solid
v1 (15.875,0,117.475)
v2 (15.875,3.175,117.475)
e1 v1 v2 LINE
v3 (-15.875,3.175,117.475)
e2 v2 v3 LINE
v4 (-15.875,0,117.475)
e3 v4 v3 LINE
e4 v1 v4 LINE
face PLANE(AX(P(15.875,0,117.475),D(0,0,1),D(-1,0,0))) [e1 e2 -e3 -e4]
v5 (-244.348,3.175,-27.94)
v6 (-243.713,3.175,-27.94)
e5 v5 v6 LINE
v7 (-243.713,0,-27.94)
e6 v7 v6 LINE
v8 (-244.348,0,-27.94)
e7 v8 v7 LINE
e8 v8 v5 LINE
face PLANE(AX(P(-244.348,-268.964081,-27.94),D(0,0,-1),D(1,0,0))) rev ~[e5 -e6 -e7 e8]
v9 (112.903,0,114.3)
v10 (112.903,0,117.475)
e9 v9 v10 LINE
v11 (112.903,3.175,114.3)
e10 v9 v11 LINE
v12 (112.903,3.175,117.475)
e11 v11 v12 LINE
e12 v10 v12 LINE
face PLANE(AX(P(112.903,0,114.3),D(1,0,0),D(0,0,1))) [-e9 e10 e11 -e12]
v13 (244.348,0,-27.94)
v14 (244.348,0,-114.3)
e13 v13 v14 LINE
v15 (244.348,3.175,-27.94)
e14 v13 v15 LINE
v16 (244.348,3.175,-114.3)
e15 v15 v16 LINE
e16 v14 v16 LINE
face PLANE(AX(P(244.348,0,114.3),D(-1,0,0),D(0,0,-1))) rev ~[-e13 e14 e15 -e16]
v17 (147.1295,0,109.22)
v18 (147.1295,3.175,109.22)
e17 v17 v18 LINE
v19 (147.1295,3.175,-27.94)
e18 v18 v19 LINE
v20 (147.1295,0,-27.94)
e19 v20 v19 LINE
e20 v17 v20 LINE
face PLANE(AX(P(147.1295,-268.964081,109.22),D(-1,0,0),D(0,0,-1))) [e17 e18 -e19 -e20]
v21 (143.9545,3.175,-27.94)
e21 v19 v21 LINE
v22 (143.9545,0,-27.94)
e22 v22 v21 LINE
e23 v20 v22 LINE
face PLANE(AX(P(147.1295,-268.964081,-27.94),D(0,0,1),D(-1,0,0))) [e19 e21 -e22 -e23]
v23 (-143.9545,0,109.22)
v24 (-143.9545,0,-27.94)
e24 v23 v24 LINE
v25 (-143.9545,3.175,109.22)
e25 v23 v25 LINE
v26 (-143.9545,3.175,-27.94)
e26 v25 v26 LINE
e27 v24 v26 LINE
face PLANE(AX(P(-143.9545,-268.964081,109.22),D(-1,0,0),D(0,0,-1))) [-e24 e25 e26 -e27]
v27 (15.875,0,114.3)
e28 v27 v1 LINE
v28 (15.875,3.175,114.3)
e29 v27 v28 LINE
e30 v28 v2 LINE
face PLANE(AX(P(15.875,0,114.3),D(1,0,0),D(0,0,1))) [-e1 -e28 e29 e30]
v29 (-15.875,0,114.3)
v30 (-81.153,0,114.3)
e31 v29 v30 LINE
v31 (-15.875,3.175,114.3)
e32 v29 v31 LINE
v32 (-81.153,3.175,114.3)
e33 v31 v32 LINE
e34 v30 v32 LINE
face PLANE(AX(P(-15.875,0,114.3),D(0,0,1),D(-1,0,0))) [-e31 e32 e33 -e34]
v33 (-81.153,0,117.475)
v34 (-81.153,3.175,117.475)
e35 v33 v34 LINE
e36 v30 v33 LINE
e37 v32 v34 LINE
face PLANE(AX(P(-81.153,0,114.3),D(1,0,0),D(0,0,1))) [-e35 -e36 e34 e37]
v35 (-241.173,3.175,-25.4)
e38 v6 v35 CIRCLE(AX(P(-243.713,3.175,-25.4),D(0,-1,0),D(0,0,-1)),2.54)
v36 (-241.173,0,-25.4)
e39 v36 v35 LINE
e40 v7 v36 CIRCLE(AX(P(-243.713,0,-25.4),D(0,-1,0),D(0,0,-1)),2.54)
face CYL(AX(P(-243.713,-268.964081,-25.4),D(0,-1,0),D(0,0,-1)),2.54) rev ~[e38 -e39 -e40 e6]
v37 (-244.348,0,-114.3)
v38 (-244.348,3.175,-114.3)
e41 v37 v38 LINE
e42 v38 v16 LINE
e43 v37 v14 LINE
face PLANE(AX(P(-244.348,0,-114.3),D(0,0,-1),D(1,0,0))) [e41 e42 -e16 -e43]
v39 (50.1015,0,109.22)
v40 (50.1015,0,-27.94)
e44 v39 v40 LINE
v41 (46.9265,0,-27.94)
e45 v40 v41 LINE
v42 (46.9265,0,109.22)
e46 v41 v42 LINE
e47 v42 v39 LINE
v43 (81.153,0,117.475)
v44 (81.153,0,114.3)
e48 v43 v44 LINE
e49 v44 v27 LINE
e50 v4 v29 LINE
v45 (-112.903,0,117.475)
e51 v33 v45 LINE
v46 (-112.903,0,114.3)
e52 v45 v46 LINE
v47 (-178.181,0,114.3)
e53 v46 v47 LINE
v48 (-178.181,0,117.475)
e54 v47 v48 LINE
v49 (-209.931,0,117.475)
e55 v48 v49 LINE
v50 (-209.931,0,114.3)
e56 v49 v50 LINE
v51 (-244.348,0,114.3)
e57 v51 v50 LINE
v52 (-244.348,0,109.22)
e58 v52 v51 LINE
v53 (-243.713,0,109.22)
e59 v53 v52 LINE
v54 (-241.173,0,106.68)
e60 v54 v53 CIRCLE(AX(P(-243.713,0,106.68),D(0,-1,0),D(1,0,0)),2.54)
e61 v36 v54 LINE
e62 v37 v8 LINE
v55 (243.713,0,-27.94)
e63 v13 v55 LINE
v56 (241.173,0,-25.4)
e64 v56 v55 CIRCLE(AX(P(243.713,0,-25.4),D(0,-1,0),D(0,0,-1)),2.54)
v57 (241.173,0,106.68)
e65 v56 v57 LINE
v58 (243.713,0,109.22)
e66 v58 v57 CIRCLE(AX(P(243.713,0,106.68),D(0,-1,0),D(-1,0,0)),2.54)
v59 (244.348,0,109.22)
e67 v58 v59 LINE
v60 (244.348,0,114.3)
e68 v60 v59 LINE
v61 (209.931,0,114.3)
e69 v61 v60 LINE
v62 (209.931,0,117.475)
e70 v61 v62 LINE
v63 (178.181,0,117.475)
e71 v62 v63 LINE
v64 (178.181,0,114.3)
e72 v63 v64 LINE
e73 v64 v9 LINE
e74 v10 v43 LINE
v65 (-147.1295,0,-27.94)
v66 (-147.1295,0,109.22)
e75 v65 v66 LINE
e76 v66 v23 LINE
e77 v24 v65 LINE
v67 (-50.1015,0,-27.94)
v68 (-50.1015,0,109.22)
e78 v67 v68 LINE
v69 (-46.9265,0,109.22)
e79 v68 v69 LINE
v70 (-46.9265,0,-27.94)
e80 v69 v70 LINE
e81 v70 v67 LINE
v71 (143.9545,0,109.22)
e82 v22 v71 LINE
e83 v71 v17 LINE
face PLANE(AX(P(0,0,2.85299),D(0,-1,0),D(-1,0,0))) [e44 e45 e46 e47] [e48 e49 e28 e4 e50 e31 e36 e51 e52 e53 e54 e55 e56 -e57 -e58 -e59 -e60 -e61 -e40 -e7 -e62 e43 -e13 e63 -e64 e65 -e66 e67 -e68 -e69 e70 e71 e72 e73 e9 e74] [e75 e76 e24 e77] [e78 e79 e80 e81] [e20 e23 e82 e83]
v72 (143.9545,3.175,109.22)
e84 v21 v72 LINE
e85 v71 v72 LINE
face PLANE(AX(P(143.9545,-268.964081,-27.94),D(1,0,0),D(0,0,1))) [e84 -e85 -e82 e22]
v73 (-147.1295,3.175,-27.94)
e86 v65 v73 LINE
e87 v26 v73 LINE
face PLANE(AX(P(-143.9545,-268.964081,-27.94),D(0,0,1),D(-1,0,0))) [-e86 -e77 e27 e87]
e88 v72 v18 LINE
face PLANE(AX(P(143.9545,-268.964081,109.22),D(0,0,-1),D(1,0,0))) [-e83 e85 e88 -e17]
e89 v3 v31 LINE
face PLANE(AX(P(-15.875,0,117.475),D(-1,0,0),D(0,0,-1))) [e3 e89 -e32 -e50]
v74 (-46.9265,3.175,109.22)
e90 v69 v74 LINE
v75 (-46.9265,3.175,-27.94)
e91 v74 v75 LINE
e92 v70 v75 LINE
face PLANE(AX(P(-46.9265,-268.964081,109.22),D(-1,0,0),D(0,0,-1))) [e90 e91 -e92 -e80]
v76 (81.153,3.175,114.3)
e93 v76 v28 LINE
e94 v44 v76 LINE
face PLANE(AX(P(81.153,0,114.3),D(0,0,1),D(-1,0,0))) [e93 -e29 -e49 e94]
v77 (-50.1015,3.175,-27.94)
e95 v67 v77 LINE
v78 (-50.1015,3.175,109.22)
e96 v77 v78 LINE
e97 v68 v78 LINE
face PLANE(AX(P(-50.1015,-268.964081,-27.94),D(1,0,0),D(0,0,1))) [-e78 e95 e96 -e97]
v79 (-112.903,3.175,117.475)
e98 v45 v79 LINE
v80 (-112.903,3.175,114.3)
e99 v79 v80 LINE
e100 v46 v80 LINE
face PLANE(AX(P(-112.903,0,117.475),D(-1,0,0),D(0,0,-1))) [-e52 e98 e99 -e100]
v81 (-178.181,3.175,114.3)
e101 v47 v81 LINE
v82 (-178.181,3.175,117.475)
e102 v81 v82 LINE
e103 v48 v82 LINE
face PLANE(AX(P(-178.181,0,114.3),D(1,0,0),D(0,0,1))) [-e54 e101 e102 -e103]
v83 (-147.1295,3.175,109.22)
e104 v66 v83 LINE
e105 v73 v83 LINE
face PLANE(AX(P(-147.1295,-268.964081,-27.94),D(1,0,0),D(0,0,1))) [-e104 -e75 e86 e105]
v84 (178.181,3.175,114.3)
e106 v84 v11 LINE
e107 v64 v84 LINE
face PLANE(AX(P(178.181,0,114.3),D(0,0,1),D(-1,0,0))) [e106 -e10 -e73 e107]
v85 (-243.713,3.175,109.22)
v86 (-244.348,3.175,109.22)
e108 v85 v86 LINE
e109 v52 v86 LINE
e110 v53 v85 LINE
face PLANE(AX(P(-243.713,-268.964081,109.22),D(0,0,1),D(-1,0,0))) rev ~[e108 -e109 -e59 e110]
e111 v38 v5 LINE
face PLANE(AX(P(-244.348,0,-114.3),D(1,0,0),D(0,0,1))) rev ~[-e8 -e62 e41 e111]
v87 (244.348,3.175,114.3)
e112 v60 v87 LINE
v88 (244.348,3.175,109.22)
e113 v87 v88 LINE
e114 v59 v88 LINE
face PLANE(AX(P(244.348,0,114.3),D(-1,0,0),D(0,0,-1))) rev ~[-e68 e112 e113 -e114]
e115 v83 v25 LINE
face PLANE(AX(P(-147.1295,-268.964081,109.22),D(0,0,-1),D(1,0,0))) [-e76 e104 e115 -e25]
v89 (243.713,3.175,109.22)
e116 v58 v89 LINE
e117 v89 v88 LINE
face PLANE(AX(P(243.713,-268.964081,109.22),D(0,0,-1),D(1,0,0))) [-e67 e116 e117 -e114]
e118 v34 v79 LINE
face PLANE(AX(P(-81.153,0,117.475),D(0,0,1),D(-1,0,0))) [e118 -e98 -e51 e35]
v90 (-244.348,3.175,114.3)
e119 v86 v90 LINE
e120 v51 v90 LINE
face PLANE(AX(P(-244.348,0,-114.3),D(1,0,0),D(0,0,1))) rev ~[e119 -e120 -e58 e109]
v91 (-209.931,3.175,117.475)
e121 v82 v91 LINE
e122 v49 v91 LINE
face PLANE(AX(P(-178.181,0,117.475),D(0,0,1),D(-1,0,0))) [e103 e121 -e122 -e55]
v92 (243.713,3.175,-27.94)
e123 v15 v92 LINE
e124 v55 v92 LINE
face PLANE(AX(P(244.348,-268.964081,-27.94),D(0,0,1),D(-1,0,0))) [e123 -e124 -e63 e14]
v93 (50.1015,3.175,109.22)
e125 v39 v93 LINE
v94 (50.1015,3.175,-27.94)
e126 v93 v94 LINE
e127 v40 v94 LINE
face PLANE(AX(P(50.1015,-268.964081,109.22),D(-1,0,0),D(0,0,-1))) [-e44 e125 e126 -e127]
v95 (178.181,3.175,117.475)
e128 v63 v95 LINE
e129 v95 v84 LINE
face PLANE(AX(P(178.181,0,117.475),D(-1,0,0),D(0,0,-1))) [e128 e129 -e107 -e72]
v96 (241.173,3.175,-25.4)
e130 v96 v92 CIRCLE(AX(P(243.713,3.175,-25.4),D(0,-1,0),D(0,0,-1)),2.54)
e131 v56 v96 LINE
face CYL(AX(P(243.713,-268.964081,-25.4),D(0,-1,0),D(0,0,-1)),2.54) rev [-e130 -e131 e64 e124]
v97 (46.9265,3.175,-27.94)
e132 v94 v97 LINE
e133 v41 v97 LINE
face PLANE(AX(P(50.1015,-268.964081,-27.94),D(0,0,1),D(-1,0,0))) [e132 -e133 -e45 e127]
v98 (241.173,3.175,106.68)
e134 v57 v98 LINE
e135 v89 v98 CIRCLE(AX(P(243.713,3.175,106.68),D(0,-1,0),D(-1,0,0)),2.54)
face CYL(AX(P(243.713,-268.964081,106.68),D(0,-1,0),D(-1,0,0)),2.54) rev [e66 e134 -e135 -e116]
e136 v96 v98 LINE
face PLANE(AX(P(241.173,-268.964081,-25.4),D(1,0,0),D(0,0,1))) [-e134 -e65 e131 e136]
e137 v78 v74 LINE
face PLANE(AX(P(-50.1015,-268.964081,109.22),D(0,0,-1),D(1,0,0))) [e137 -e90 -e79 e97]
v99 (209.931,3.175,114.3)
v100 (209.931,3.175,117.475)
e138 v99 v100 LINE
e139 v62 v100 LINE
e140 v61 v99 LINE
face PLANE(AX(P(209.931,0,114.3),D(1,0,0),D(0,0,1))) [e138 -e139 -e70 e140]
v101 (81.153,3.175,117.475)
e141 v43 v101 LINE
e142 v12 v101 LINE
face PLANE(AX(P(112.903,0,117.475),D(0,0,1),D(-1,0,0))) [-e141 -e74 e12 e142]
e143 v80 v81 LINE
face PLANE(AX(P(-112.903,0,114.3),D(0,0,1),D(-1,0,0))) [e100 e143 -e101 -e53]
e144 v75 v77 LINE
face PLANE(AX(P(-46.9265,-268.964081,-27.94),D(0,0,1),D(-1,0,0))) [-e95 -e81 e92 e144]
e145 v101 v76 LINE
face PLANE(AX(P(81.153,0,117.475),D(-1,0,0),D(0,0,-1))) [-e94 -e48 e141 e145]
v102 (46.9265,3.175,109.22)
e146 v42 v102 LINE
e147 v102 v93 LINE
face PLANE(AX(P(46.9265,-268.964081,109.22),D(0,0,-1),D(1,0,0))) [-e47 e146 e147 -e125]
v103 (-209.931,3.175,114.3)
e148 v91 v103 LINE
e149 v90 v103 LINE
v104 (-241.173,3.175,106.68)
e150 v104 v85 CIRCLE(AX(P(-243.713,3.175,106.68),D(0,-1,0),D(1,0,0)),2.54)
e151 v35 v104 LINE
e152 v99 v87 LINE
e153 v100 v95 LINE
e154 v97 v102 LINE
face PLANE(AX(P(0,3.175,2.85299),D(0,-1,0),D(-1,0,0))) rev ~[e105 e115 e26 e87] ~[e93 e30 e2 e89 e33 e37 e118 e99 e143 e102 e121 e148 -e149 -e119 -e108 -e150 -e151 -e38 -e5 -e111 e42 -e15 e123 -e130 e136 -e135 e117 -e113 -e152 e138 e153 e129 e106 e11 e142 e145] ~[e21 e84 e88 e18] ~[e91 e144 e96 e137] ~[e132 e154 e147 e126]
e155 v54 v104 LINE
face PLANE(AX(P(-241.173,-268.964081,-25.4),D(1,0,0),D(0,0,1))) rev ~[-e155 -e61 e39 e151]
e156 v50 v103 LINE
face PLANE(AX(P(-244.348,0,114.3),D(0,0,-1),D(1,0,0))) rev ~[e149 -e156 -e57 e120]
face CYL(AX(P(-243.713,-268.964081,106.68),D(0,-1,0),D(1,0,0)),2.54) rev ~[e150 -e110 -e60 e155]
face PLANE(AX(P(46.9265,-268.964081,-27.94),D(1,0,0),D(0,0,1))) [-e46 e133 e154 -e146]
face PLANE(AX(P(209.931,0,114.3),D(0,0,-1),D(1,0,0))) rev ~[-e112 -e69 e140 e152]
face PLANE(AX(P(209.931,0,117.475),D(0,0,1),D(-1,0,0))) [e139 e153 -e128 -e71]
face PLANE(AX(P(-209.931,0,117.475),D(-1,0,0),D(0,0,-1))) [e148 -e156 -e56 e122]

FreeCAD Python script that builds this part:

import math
import FreeCAD as App
import Part
import Sketcher

V = App.Vector
Q = App.Units.Quantity

doc = App.newDocument("Part")
body = doc.addObject("PartDesign::Body", "Body")

# Sketch on XZ plane
sketch1 = body.newObject("Sketcher::SketchObject", "Sketch")
sketch1.AttachmentSupport = (doc.getObject("XZ_Plane"), [""])
sketch1.MapMode = "FlatFace"
sketch1.addGeometry([
    Part.LineSegment(V(244.3, -114.3, 0), V(-244.3, -114.3, 0)),  # 0
    Part.LineSegment(V(-244.3, -114.3, 0), V(-244.3, 114.3, 0)),  # 1
    Part.LineSegment(V(-244.3, 114.3, 0), V(-209.9, 114.3, 0)),  # 2
    Part.LineSegment(V(-209.9, 114.3, 0), V(-209.9, 117.5, 0)),  # 3
    Part.LineSegment(V(-209.9, 117.5, 0), V(-178.2, 117.5, 0)),  # 4
    Part.LineSegment(V(-178.2, 117.5, 0), V(-178.2, 114.3, 0)),  # 5
    Part.LineSegment(V(-178.2, 114.3, 0), V(-112.9, 114.3, 0)),  # 6
    Part.LineSegment(V(-112.9, 114.3, 0), V(-112.9, 117.5, 0)),  # 7
    Part.LineSegment(V(-112.9, 117.5, 0), V(-81.2, 117.5, 0)),  # 8
    Part.LineSegment(V(-81.2, 117.5, 0), V(-81.2, 114.3, 0)),  # 9
    Part.LineSegment(V(-81.2, 114.3, 0), V(-15.9, 114.3, 0)),  # 10
    Part.LineSegment(V(-15.9, 114.3, 0), V(-15.9, 117.5, 0)),  # 11
    Part.LineSegment(V(-15.9, 117.5, 0), V(15.9, 117.5, 0)),  # 12
    Part.LineSegment(V(15.9, 117.5, 0), V(15.9, 114.3, 0)),  # 13
    Part.LineSegment(V(15.9, 114.3, 0), V(81.2, 114.3, 0)),  # 14
    Part.LineSegment(V(81.2, 114.3, 0), V(81.2, 117.5, 0)),  # 15
    Part.LineSegment(V(81.2, 117.5, 0), V(112.9, 117.5, 0)),  # 16
    Part.LineSegment(V(112.9, 117.5, 0), V(112.9, 114.3, 0)),  # 17
    Part.LineSegment(V(112.9, 114.3, 0), V(178.2, 114.3, 0)),  # 18
    Part.LineSegment(V(178.2, 114.3, 0), V(178.2, 117.5, 0)),  # 19
    Part.LineSegment(V(178.2, 117.5, 0), V(209.9, 117.5, 0)),  # 20
    Part.LineSegment(V(209.9, 117.5, 0), V(209.9, 114.3, 0)),  # 21
    Part.LineSegment(V(209.9, 114.3, 0), V(244.3, 114.3, 0)),  # 22
    Part.LineSegment(V(244.3, 114.3, 0), V(244.3, -114.3, 0)),  # 23
], False)
sketch1.addConstraint([
    Sketcher.Constraint("Coincident", 0, 2, 1, 1),
    Sketcher.Constraint("Coincident", 1, 2, 2, 1),
    Sketcher.Constraint("Coincident", 2, 2, 3, 1),
    Sketcher.Constraint("Coincident", 3, 2, 4, 1),
    Sketcher.Constraint("Coincident", 4, 2, 5, 1),
    Sketcher.Constraint("Coincident", 5, 2, 6, 1),
    Sketcher.Constraint("Coincident", 6, 2, 7, 1),
    Sketcher.Constraint("Coincident", 7, 2, 8, 1),
    Sketcher.Constraint("Coincident", 8, 2, 9, 1),
    Sketcher.Constraint("Coincident", 9, 2, 10, 1),
    Sketcher.Constraint("Coincident", 10, 2, 11, 1),
    Sketcher.Constraint("Coincident", 11, 2, 12, 1),
    Sketcher.Constraint("Coincident", 12, 2, 13, 1),
    Sketcher.Constraint("Coincident", 13, 2, 14, 1),
    Sketcher.Constraint("Coincident", 14, 2, 15, 1),
    Sketcher.Constraint("Coincident", 15, 2, 16, 1),
    Sketcher.Constraint("Coincident", 16, 2, 17, 1),
    Sketcher.Constraint("Coincident", 17, 2, 18, 1),
    Sketcher.Constraint("Coincident", 18, 2, 19, 1),
    Sketcher.Constraint("Coincident", 19, 2, 20, 1),
    Sketcher.Constraint("Coincident", 20, 2, 21, 1),
    Sketcher.Constraint("Coincident", 21, 2, 22, 1),
    Sketcher.Constraint("Coincident", 22, 2, 23, 1),
    Sketcher.Constraint("Coincident", 23, 2, 0, 1),
    Sketcher.Constraint("Horizontal", 0),
    Sketcher.Constraint("Vertical", 1),
    Sketcher.Constraint("Horizontal", 2),
    Sketcher.Constraint("Vertical", 3),
    Sketcher.Constraint("Horizontal", 4),
    Sketcher.Constraint("Vertical", 5),
    Sketcher.Constraint("Horizontal", 6),
    Sketcher.Constraint("Vertical", 7),
    Sketcher.Constraint("Horizontal", 8),
    Sketcher.Constraint("Vertical", 9),
    Sketcher.Constraint("Horizontal", 10),
    Sketcher.Constraint("Vertical", 11),
    Sketcher.Constraint("Horizontal", 12),
    Sketcher.Constraint("Vertical", 13),
    Sketcher.Constraint("Horizontal", 14),
    Sketcher.Constraint("Vertical", 15),
    Sketcher.Constraint("Horizontal", 16),
    Sketcher.Constraint("Vertical", 17),
    Sketcher.Constraint("Horizontal", 18),
    Sketcher.Constraint("Vertical", 19),
    Sketcher.Constraint("Horizontal", 20),
    Sketcher.Constraint("Vertical", 21),
    Sketcher.Constraint("Horizontal", 22),
    Sketcher.Constraint("Vertical", 23),
    Sketcher.Constraint("Symmetric", 0, 2, 22, 2, -1, 1),
    Sketcher.Constraint("Symmetric", 10, 2, 13, 2, -2),
    Sketcher.Constraint("Symmetric", 8, 2, 15, 2, -2),
    Sketcher.Constraint("Symmetric", 6, 2, 17, 2, -2),
    Sketcher.Constraint("Symmetric", 4, 2, 19, 2, -2),
    Sketcher.Constraint("Symmetric", 2, 2, 21, 2, -2),
    Sketcher.Constraint("Horizontal", 2, 2, 5, 2),
    Sketcher.Constraint("Horizontal", 4, 2, 7, 2),
    Sketcher.Constraint("Horizontal", 6, 2, 9, 2),
    Sketcher.Constraint("Horizontal", 8, 2, 11, 2),
    Sketcher.Constraint("Equal", 4, 8),
    Sketcher.Constraint("Equal", 6, 10),
    Sketcher.Constraint("Equal", 8, 12),
    Sketcher.Constraint("DistanceY", 1, 1, 1, 2, Q("9 in")),
    Sketcher.Constraint("DistanceX", 0, 2, 0, 1, Q("19.24 in")),
    Sketcher.Constraint("DistanceX", 4, 1, 4, 2, Q("1.25 in")),
    Sketcher.Constraint("DistanceX", 6, 1, 6, 2, Q("2.57 in")),
    Sketcher.Constraint("DistanceY", 3, 1, 3, 2, Q("0.125 in")),
])
pad1 = body.newObject("PartDesign::Pad", "Pad")
pad1.Profile = sketch1
pad1.Length = Q("0.125 in")
pad1.Reversed = True

# Sketch on XZ plane
sketch2 = body.newObject("Sketcher::SketchObject", "Sketch001")
sketch2.AttachmentSupport = (doc.getObject("XZ_Plane"), [""])
sketch2.MapMode = "FlatFace"
sketch2.AttachmentOffset = App.Placement(V(0, 0, -0.125 * 25.4), App.Rotation())
sketch2.addGeometry([
    Part.LineSegment(V(244.3, -27.9, 0), V(243.7, -27.9, 0)),  # 0
    Part.ArcOfCircle(Part.Circle(V(243.7, -25.4, 0), V(0, 0, 1), 2.5), math.radians(-180), math.radians(-90)),  # 1
    Part.LineSegment(V(241.2, -25.4, 0), V(241.2, 106.7, 0)),  # 2
    Part.ArcOfCircle(Part.Circle(V(243.7, 106.7, 0), V(0, 0, 1), 2.5), math.radians(90), math.radians(180)),  # 3
    Part.LineSegment(V(243.7, 109.2, 0), V(244.3, 109.2, 0)),  # 4
    Part.LineSegment(V(244.3, 109.2, 0), V(244.3, -27.9, 0)),  # 5
    Part.LineSegment(V(-244.3, 109.2, 0), V(-243.7, 109.2, 0)),  # 6
    Part.ArcOfCircle(Part.Circle(V(-243.7, 106.7, 0), V(0, 0, 1), 2.5), math.radians(0), math.radians(90)),  # 7
    Part.LineSegment(V(-241.2, 106.7, 0), V(-241.2, -25.4, 0)),  # 8
    Part.ArcOfCircle(Part.Circle(V(-243.7, -25.4, 0), V(0, 0, 1), 2.5), math.radians(-90), math.radians(0)),  # 9
    Part.LineSegment(V(-243.7, -27.9, 0), V(-244.3, -27.9, 0)),  # 10
    Part.LineSegment(V(-244.3, -27.9, 0), V(-244.3, 109.2, 0)),  # 11
], False)
sketch2.addConstraint([
    Sketcher.Constraint("Tangent", 0, 2, 1, 2),
    Sketcher.Constraint("Tangent", 1, 1, 2, 1),
    Sketcher.Constraint("Tangent", 2, 2, 3, 2),
    Sketcher.Constraint("Tangent", 3, 1, 4, 1),
    Sketcher.Constraint("Coincident", 4, 2, 5, 1),
    Sketcher.Constraint("Coincident", 5, 2, 0, 1),
    Sketcher.Constraint("Tangent", 6, 2, 7, 2),
    Sketcher.Constraint("Tangent", 7, 1, 8, 1),
    Sketcher.Constraint("Tangent", 8, 2, 9, 2),
    Sketcher.Constraint("Tangent", 9, 1, 10, 1),
    Sketcher.Constraint("Coincident", 10, 2, 11, 1),
    Sketcher.Constraint("Coincident", 11, 2, 6, 1),
    Sketcher.Constraint("Horizontal", 0),
    Sketcher.Constraint("Vertical", 2),
    Sketcher.Constraint("Horizontal", 4),
    Sketcher.Constraint("Vertical", 5),
    Sketcher.Constraint("Horizontal", 6),
    Sketcher.Constraint("Vertical", 8),
    Sketcher.Constraint("Horizontal", 10),
    Sketcher.Constraint("Vertical", 11),
    Sketcher.Constraint("Equal", 1, 3),
    Sketcher.Constraint("Equal", 3, 7),
    Sketcher.Constraint("Equal", 7, 9),
    Sketcher.Constraint("Symmetric", 3, 3, 7, 3, -2),
    Sketcher.Constraint("Symmetric", 5, 2, 10, 2, -2),
    Sketcher.Constraint("Radius", 1, Q("0.1 in")),
    Sketcher.Constraint("DistanceY", 2, 1, 2, 2, Q("5.2 in")),
    Sketcher.Constraint("DistanceY", 1, 3, -1, 1, Q("1 in")),
    Sketcher.Constraint("DistanceX", 0, 2, 0, 1, Q("0.025 in")),
    Sketcher.Constraint("DistanceX", -1, 1, 4, 2, Q("9.62 in")),
])
pocket1 = body.newObject("PartDesign::Pocket", "Pocket")
pocket1.Profile = sketch2
pocket1.Type = "ThroughAll"
pocket1.Midplane = True

# Sketch on XZ plane
sketch3 = body.newObject("Sketcher::SketchObject", "Sketch002")
sketch3.AttachmentSupport = (doc.getObject("XZ_Plane"), [""])
sketch3.MapMode = "FlatFace"
sketch3.AttachmentOffset = App.Placement(V(0, 0, -0.125 * 25.4), App.Rotation())
sketch3.addGeometry([
    Part.LineSegment(V(-147.1, -27.9, 0), V(-147.1, 109.2, 0)),  # 0
    Part.LineSegment(V(-147.1, 109.2, 0), V(-144, 109.2, 0)),  # 1
    Part.LineSegment(V(-144, 109.2, 0), V(-144, -27.9, 0)),  # 2
    Part.LineSegment(V(-144, -27.9, 0), V(-147.1, -27.9, 0)),  # 3
    Part.LineSegment(V(-50.1, 109.2, 0), V(-46.9, 109.2, 0)),  # 4
    Part.LineSegment(V(-46.9, 109.2, 0), V(-46.9, -27.9, 0)),  # 5
    Part.LineSegment(V(-46.9, -27.9, 0), V(-50.1, -27.9, 0)),  # 6
    Part.LineSegment(V(-50.1, -27.9, 0), V(-50.1, 109.2, 0)),  # 7
    Part.LineSegment(V(46.9, 109.2, 0), V(50.1, 109.2, 0)),  # 8
    Part.LineSegment(V(50.1, 109.2, 0), V(50.1, -27.9, 0)),  # 9
    Part.LineSegment(V(50.1, -27.9, 0), V(46.9, -27.9, 0)),  # 10
    Part.LineSegment(V(46.9, -27.9, 0), V(46.9, 109.2, 0)),  # 11
    Part.LineSegment(V(144, 109.2, 0), V(147.1, 109.2, 0)),  # 12
    Part.LineSegment(V(147.1, 109.2, 0), V(147.1, -27.9, 0)),  # 13
    Part.LineSegment(V(147.1, -27.9, 0), V(144, -27.9, 0)),  # 14
    Part.LineSegment(V(144, -27.9, 0), V(144, 109.2, 0)),  # 15
], False)
sketch3.addConstraint([
    Sketcher.Constraint("Coincident", 0, 2, 1, 1),
    Sketcher.Constraint("Coincident", 1, 2, 2, 1),
    Sketcher.Constraint("Coincident", 2, 2, 3, 1),
    Sketcher.Constraint("Coincident", 3, 2, 0, 1),
    Sketcher.Constraint("Coincident", 4, 2, 5, 1),
    Sketcher.Constraint("Coincident", 5, 2, 6, 1),
    Sketcher.Constraint("Coincident", 6, 2, 7, 1),
    Sketcher.Constraint("Coincident", 7, 2, 4, 1),
    Sketcher.Constraint("Coincident", 8, 2, 9, 1),
    Sketcher.Constraint("Coincident", 9, 2, 10, 1),
    Sketcher.Constraint("Coincident", 10, 2, 11, 1),
    Sketcher.Constraint("Coincident", 11, 2, 8, 1),
    Sketcher.Constraint("Coincident", 12, 2, 13, 1),
    Sketcher.Constraint("Coincident", 13, 2, 14, 1),
    Sketcher.Constraint("Coincident", 14, 2, 15, 1),
    Sketcher.Constraint("Coincident", 15, 2, 12, 1),
    Sketcher.Constraint("Vertical", 0),
    Sketcher.Constraint("Horizontal", 1),
    Sketcher.Constraint("Vertical", 2),
    Sketcher.Constraint("Horizontal", 3),
    Sketcher.Constraint("Horizontal", 4),
    Sketcher.Constraint("Vertical", 5),
    Sketcher.Constraint("Horizontal", 6),
    Sketcher.Constraint("Vertical", 7),
    Sketcher.Constraint("Horizontal", 8),
    Sketcher.Constraint("Vertical", 9),
    Sketcher.Constraint("Horizontal", 10),
    Sketcher.Constraint("Vertical", 11),
    Sketcher.Constraint("Horizontal", 12),
    Sketcher.Constraint("Vertical", 13),
    Sketcher.Constraint("Horizontal", 14),
    Sketcher.Constraint("Vertical", 15),
    Sketcher.Constraint("Symmetric", 7, 2, 8, 2, -2),
    Sketcher.Constraint("Symmetric", 5, 2, 10, 2, -2),
    Sketcher.Constraint("Symmetric", 0, 2, 12, 2, -2),
    Sketcher.Constraint("Symmetric", 2, 2, 14, 2, -2),
    Sketcher.Constraint("Horizontal", 1, 2, 4, 2),
    Sketcher.Constraint("Horizontal", 3, 2, 5, 2),
    Sketcher.Constraint("Equal", 3, 4),
    Sketcher.Constraint("DistanceY", 0, 1, 0, 2, Q("5.4 in")),
    Sketcher.Constraint("DistanceY", -1, 1, 0, 2, Q("4.3 in")),
    Sketcher.Constraint("DistanceX", 1, 1, 1, 2, Q("0.125 in")),
    Sketcher.Constraint("DistanceX", 1, 2, 4, 2, Q("3.82 in")),
    Sketcher.Constraint("DistanceX", 4, 2, 8, 2, Q("3.82 in")),
])
pocket2 = body.newObject("PartDesign::Pocket", "Pocket001")
pocket2.Profile = sketch3
pocket2.Type = "ThroughAll"
pocket2.Midplane = True

doc.recompute()
